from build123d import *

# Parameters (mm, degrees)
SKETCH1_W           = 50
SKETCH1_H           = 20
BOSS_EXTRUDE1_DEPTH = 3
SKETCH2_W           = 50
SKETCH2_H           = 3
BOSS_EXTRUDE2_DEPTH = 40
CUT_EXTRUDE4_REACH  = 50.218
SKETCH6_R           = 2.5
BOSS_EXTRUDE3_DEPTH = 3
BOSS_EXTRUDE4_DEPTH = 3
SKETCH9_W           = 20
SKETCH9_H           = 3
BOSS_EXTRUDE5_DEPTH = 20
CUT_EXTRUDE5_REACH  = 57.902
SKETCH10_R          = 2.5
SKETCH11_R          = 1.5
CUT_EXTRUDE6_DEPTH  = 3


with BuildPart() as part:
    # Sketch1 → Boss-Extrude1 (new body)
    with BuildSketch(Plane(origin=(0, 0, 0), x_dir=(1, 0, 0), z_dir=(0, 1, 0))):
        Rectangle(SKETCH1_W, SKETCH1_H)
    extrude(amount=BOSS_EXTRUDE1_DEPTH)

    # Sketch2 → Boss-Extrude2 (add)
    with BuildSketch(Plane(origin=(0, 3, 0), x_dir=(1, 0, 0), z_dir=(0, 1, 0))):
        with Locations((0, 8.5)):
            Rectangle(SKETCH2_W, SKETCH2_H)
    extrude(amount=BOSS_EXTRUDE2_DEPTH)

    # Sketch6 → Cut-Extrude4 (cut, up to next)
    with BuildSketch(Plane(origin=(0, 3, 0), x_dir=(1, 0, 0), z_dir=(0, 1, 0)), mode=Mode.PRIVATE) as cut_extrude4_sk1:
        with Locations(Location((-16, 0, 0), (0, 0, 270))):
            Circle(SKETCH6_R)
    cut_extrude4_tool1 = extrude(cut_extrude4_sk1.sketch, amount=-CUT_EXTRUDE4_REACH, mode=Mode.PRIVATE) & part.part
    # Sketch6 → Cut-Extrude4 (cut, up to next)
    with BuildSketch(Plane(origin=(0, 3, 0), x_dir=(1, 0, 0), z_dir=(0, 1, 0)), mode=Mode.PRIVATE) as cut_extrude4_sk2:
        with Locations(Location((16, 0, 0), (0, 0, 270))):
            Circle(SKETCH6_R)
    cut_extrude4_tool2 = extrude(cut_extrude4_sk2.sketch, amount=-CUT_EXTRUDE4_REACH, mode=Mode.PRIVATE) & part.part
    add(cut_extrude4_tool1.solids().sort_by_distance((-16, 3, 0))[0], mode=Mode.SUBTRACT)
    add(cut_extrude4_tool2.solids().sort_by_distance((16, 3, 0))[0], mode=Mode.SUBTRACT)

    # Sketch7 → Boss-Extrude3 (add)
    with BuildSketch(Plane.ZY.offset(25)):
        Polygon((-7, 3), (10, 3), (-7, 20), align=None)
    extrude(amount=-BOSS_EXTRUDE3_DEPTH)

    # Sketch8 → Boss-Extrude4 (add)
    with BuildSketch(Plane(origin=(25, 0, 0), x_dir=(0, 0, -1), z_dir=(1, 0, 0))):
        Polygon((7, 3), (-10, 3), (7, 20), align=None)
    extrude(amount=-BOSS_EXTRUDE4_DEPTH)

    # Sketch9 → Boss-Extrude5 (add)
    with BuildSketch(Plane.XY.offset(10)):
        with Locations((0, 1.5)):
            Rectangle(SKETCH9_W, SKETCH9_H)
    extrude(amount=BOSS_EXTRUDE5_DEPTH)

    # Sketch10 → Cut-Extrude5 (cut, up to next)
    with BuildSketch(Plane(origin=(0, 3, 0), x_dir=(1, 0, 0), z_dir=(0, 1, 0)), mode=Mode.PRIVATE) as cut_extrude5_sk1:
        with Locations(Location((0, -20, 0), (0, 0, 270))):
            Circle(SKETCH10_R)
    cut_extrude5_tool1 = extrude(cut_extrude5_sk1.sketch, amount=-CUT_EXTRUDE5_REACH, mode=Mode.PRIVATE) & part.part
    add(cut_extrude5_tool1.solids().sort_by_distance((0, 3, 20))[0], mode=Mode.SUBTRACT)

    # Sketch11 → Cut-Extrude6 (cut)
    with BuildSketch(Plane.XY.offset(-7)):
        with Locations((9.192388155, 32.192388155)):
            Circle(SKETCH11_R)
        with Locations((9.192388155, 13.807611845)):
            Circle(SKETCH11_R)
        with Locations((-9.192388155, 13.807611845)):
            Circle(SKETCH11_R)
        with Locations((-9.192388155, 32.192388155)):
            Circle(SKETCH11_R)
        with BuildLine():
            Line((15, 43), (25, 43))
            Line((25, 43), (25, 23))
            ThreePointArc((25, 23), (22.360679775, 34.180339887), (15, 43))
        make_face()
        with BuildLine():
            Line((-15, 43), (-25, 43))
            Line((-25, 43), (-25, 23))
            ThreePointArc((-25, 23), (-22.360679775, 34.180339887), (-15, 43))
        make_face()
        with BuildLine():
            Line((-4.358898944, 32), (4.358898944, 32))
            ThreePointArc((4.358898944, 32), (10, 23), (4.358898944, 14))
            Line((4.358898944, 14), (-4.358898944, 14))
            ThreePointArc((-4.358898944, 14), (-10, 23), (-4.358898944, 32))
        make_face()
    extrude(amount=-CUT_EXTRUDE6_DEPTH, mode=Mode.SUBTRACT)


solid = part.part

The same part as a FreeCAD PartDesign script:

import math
import FreeCAD as App
import Part
import Sketcher
from FreeCAD import Vector

doc = App.newDocument("Part")
body = doc.addObject("PartDesign::Body", "Body")

# Sketch on XZ plane
sketch1 = body.newObject("Sketcher::SketchObject", "Sketch")
sketch1.AttachmentSupport = (doc.getObject("XZ_Plane"), [""])
sketch1.MapMode = "FlatFace"
sketch1.addGeometry(Part.LineSegment(Vector(-25, -10, 0), Vector(-25, 10, 0)), False)
sketch1.addGeometry(Part.LineSegment(Vector(-25, 10, 0), Vector(25, 10, 0)), False)
sketch1.addGeometry(Part.LineSegment(Vector(25, 10, 0), Vector(25, -10, 0)), False)
sketch1.addGeometry(Part.LineSegment(Vector(25, -10, 0), Vector(-25, -10, 0)), False)
sketch1.addConstraint(Sketcher.Constraint("Coincident", 0, 2, 1, 1))
sketch1.addConstraint(Sketcher.Constraint("Coincident", 1, 2, 2, 1))
sketch1.addConstraint(Sketcher.Constraint("Coincident", 2, 2, 3, 1))
sketch1.addConstraint(Sketcher.Constraint("Coincident", 3, 2, 0, 1))
sketch1.addConstraint(Sketcher.Constraint("Vertical", 0))
sketch1.addConstraint(Sketcher.Constraint("Horizontal", 1))
sketch1.addConstraint(Sketcher.Constraint("Vertical", 2))
sketch1.addConstraint(Sketcher.Constraint("Horizontal", 3))
sketch1.addConstraint(Sketcher.Constraint("Symmetric", 0, 2, 2, 2, -1, 1))
sketch1.addConstraint(Sketcher.Constraint("DistanceX", 1, 1, 1, 2, 50.0))
sketch1.addConstraint(Sketcher.Constraint("DistanceY", 0, 1, 0, 2, 20.0))
pad1 = body.newObject("PartDesign::Pad", "Pad")
pad1.Profile = sketch1
pad1.Length = 3
pad1.Reversed = True

# Sketch on XZ plane
sketch2 = body.newObject("Sketcher::SketchObject", "Sketch001")
sketch2.AttachmentSupport = (doc.getObject("XZ_Plane"), [""])
sketch2.MapMode = "FlatFace"
sketch2.AttachmentOffset = App.Placement(Vector(0, 0, -3), App.Rotation())
sketch2.addGeometry(Part.LineSegment(Vector(-25, -10, 0), Vector(-25, -7, 0)), False)
sketch2.addGeometry(Part.LineSegment(Vector(-25, -7, 0), Vector(25, -7, 0)), False)
sketch2.addGeometry(Part.LineSegment(Vector(25, -7, 0), Vector(25, -10, 0)), False)
sketch2.addGeometry(Part.LineSegment(Vector(25, -10, 0), Vector(-25, -10, 0)), False)
sketch2.addConstraint(Sketcher.Constraint("Coincident", 0, 2, 1, 1))
sketch2.addConstraint(Sketcher.Constraint("Coincident", 1, 2, 2, 1))
sketch2.addConstraint(Sketcher.Constraint("Coincident", 2, 2, 3, 1))
sketch2.addConstraint(Sketcher.Constraint("Coincident", 3, 2, 0, 1))
sketch2.addConstraint(Sketcher.Constraint("Vertical", 0))
sketch2.addConstraint(Sketcher.Constraint("Horizontal", 1))
sketch2.addConstraint(Sketcher.Constraint("Vertical", 2))
sketch2.addConstraint(Sketcher.Constraint("Horizontal", 3))
sketch2.addConstraint(Sketcher.Constraint("DistanceX", 1, 1, 1, 2, 50.0))
sketch2.addConstraint(Sketcher.Constraint("DistanceY", 0, 1, 0, 2, 3.0))
sketch2.addConstraint(Sketcher.Constraint("DistanceX", 0, 2, -1, 1, 25.0))
sketch2.addConstraint(Sketcher.Constraint("DistanceY", 0, 2, -1, 1, 7.0))
pad2 = body.newObject("PartDesign::Pad", "Pad001")
pad2.Profile = sketch2
pad2.Length = 40
pad2.Reversed = True

# Sketch on XZ plane
sketch3 = body.newObject("Sketcher::SketchObject", "Sketch002")
sketch3.AttachmentSupport = (doc.getObject("XZ_Plane"), [""])
sketch3.MapMode = "FlatFace"
sketch3.AttachmentOffset = App.Placement(Vector(0, 0, -3), App.Rotation())
sketch3.addGeometry(Part.Circle(Vector(-16, 0, 0), Vector(0, 0, 1), 2.5), False)
sketch3.addConstraint(Sketcher.Constraint("PointOnObject", 0, 3, -1))
sketch3.addConstraint(Sketcher.Constraint("Diameter", 0, 5.0))
sketch3.addConstraint(Sketcher.Constraint("DistanceX", 0, 3, -1, 1, 16.0))
pocket1 = body.newObject("PartDesign::Pocket", "Pocket")
pocket1.Profile = sketch3
pocket1.Type = "UpToFirst"
pocket1.Reversed = True

# Sketch on XZ plane
sketch4 = body.newObject("Sketcher::SketchObject", "Sketch003")
sketch4.AttachmentSupport = (doc.getObject("XZ_Plane"), [""])
sketch4.MapMode = "FlatFace"
sketch4.AttachmentOffset = App.Placement(Vector(0, 0, -3), App.Rotation())
sketch4.addGeometry(Part.Circle(Vector(16, 0, 0), Vector(0, 0, 1), 2.5), False)
sketch4.addConstraint(Sketcher.Constraint("PointOnObject", 0, 3, -1))
sketch4.addConstraint(Sketcher.Constraint("Diameter", 0, 5.0))
sketch4.addConstraint(Sketcher.Constraint("DistanceX", -1, 1, 0, 3, 16.0))
pocket2 = body.newObject("PartDesign::Pocket", "Pocket001")
pocket2.Profile = sketch4
pocket2.Type = "UpToFirst"
pocket2.Reversed = True

# Sketch on YZ plane
sketch5 = body.newObject("Sketcher::SketchObject", "Sketch004")
sketch5.AttachmentSupport = (doc.getObject("YZ_Plane"), [""])
sketch5.MapMode = "FlatFace"
sketch5.AttachmentOffset = App.Placement(Vector(0, 0, -25), App.Rotation())
sketch5.addGeometry(Part.LineSegment(Vector(3, -7, 0), Vector(3, 10, 0)), False)
sketch5.addGeometry(Part.LineSegment(Vector(3, 10, 0), Vector(20, -7, 0)), False)
sketch5.addGeometry(Part.LineSegment(Vector(20, -7, 0), Vector(3, -7, 0)), False)
sketch5.addConstraint(Sketcher.Constraint("Coincident", 0, 2, 1, 1))
sketch5.addConstraint(Sketcher.Constraint("Coincident", 1, 2, 2, 1))
sketch5.addConstraint(Sketcher.Constraint("Coincident", 2, 2, 0, 1))
sketch5.addConstraint(Sketcher.Constraint("Vertical", 0))
sketch5.addConstraint(Sketcher.Constraint("Horizontal", 2))
sketch5.addConstraint(Sketcher.Constraint("Equal", 2, 0))
sketch5.addConstraint(Sketcher.Constraint("DistanceX", 2, 2, 2, 1, 17.0))
sketch5.addConstraint(Sketcher.Constraint("DistanceX", -1, 1, 0, 2, 3.0))
sketch5.addConstraint(Sketcher.Constraint("DistanceY", -1, 1, 0, 2, 10.0))
pad3 = body.newObject("PartDesign::Pad", "Pad002")
pad3.Profile = sketch5
pad3.Length = 3

# Sketch on YZ plane
sketch6 = body.newObject("Sketcher::SketchObject", "Sketch005")
sketch6.AttachmentSupport = (doc.getObject("YZ_Plane"), [""])
sketch6.MapMode = "FlatFace"
sketch6.AttachmentOffset = App.Placement(Vector(0, 0, 25), App.Rotation())
sketch6.addGeometry(Part.LineSegment(Vector(3, 10, 0), Vector(3, -7, 0)), False)
sketch6.addGeometry(Part.LineSegment(Vector(3, -7, 0), Vector(20, -7, 0)), False)
sketch6.addGeometry(Part.LineSegment(Vector(20, -7, 0), Vector(3, 10, 0)), False)
sketch6.addConstraint(Sketcher.Constraint("Coincident", 0, 2, 1, 1))
sketch6.addConstraint(Sketcher.Constraint("Coincident", 1, 2, 2, 1))
sketch6.addConstraint(Sketcher.Constraint("Coincident", 2, 2, 0, 1))
sketch6.addConstraint(Sketcher.Constraint("Vertical", 0))
sketch6.addConstraint(Sketcher.Constraint("Horizontal", 1))
sketch6.addConstraint(Sketcher.Constraint("Equal", 1, 0))
sketch6.addConstraint(Sketcher.Constraint("DistanceX", 1, 1, 1, 2, 17.0))
sketch6.addConstraint(Sketcher.Constraint("DistanceX", -1, 1, 0, 2, 3.0))
sketch6.addConstraint(Sketcher.Constraint("DistanceY", 0, 2, -1, 1, 7.0))
pad4 = body.newObject("PartDesign::Pad", "Pad003")
pad4.Profile = sketch6
pad4.Length = 3
pad4.Reversed = True

# Sketch on XY plane
sketch7 = body.newObject("Sketcher::SketchObject", "Sketch006")
sketch7.AttachmentSupport = (doc.getObject("XY_Plane"), [""])
sketch7.MapMode = "FlatFace"
sketch7.AttachmentOffset = App.Placement(Vector(0, 0, 10), App.Rotation())
sketch7.addGeometry(Part.LineSegment(Vector(-10, 3, 0), Vector(-10, 0, 0)), False)
sketch7.addGeometry(Part.LineSegment(Vector(-10, 0, 0), Vector(10, 0, 0)), False)
sketch7.addGeometry(Part.LineSegment(Vector(10, 0, 0), Vector(10, 3, 0)), False)
sketch7.addGeometry(Part.LineSegment(Vector(10, 3, 0), Vector(-10, 3, 0)), False)
sketch7.addConstraint(Sketcher.Constraint("Coincident", 0, 2, 1, 1))
sketch7.addConstraint(Sketcher.Constraint("Coincident", 1, 2, 2, 1))
sketch7.addConstraint(Sketcher.Constraint("Coincident", 2, 2, 3, 1))
sketch7.addConstraint(Sketcher.Constraint("Coincident", 3, 2, 0, 1))
sketch7.addConstraint(Sketcher.Constraint("Vertical", 0))
sketch7.addConstraint(Sketcher.Constraint("Horizontal", 1))
sketch7.addConstraint(Sketcher.Constraint("Vertical", 2))
sketch7.addConstraint(Sketcher.Constraint("Horizontal", 3))
sketch7.addConstraint(Sketcher.Constraint("Symmetric", 0, 2, 1, 2, -1, 1))
sketch7.addConstraint(Sketcher.Constraint("DistanceX", 1, 1, 1, 2, 20.0))
sketch7.addConstraint(Sketcher.Constraint("DistanceY", 0, 2, 0, 1, 3.0))
pad5 = body.newObject("PartDesign::Pad", "Pad004")
pad5.Profile = sketch7
pad5.Length = 20

# Sketch on XZ plane
sketch8 = body.newObject("Sketcher::SketchObject", "Sketch007")
sketch8.AttachmentSupport = (doc.getObject("XZ_Plane"), [""])
sketch8.MapMode = "FlatFace"
sketch8.AttachmentOffset = App.Placement(Vector(0, 0, -3), App.Rotation())
sketch8.addGeometry(Part.Circle(Vector(0, 20, 0), Vector(0, 0, 1), 2.5), False)
sketch8.addConstraint(Sketcher.Constraint("PointOnObject", 0, 3, -2))
sketch8.addConstraint(Sketcher.Constraint("Diameter", 0, 5.0))
sketch8.addConstraint(Sketcher.Constraint("DistanceY", -1, 1, 0, 3, 20.0))
pocket3 = body.newObject("PartDesign::Pocket", "Pocket002")
pocket3.Profile = sketch8
pocket3.Type = "UpToFirst"
pocket3.Reversed = True

# Sketch on XY plane
sketch9 = body.newObject("Sketcher::SketchObject", "Sketch008")
sketch9.AttachmentSupport = (doc.getObject("XY_Plane"), [""])
sketch9.MapMode = "FlatFace"
sketch9.AttachmentOffset = App.Placement(Vector(0, 0, -7), App.Rotation())
sketch9.addGeometry(Part.Circle(Vector(9.192388, 32.192388, 0), Vector(0, 0, 1), 1.5), False)
sketch9.addGeometry(Part.Circle(Vector(9.192388, 13.807612, 0), Vector(0, 0, 1), 1.5), False)
sketch9.addGeometry(Part.Circle(Vector(-9.192388, 13.807612, 0), Vector(0, 0, 1), 1.5), False)
sketch9.addGeometry(Part.Circle(Vector(-9.192388, 32.192388, 0), Vector(0, 0, 1), 1.5), False)
sketch9.addGeometry(Part.LineSegment(Vector(25, 43, 0), Vector(15, 43, 0)), False)
sketch9.addGeometry(Part.ArcOfCircle(Part.Circle(Vector(0, 23, 0), Vector(0, 0, 1), 25), math.radians(0), math.radians(53.130102)), False)
sketch9.addGeometry(Part.LineSegment(Vector(25, 23, 0), Vector(25, 43, 0)), False)
sketch9.addGeometry(Part.LineSegment(Vector(-15, 43, 0), Vector(-25, 43, 0)), False)
sketch9.addGeometry(Part.LineSegment(Vector(-25, 43, 0), Vector(-25, 23, 0)), False)
sketch9.addGeometry(Part.ArcOfCircle(Part.Circle(Vector(0, 23, 0), Vector(0, 0, 1), 25), math.radians(126.869898), math.radians(180)), False)
sketch9.addGeometry(Part.LineSegment(Vector(4.358899, 32, 0), Vector(-4.358899, 32, 0)), False)
sketch9.addGeometry(Part.ArcOfCircle(Part.Circle(Vector(0, 23, 0), Vector(0, 0, 1), 10), math.radians(115.841933), math.radians(244.158067)), False)
sketch9.addGeometry(Part.LineSegment(Vector(-4.358899, 14, 0), Vector(4.358899, 14, 0)), False)
sketch9.addGeometry(Part.ArcOfCircle(Part.Circle(Vector(0, 23, 0), Vector(0, 0, 1), 10), math.radians(-64.158067), math.radians(64.158067)), False)
sketch9.addConstraint(Sketcher.Constraint("Coincident", 4, 2, 5, 2))
sketch9.addConstraint(Sketcher.Constraint("Tangent", 5, 1, 6, 1))
sketch9.addConstraint(Sketcher.Constraint("Coincident", 6, 2, 4, 1))
sketch9.addConstraint(Sketcher.Constraint("Coincident", 7, 2, 8, 1))
sketch9.addConstraint(Sketcher.Constraint("Tangent", 8, 2, 9, 2))
sketch9.addConstraint(Sketcher.Constraint("Coincident", 9, 1, 7, 1))
sketch9.addConstraint(Sketcher.Constraint("Coincident", 10, 2, 11, 1))
sketch9.addConstraint(Sketcher.Constraint("Coincident", 11, 2, 12, 1))
sketch9.addConstraint(Sketcher.Constraint("Coincident", 12, 2, 13, 1))
sketch9.addConstraint(Sketcher.Constraint("Coincident", 13, 2, 10, 1))
sketch9.addConstraint(Sketcher.Constraint("Horizontal", 4))
sketch9.addConstraint(Sketcher.Constraint("Vertical", 6))
sketch9.addConstraint(Sketcher.Constraint("Horizontal", 7))
sketch9.addConstraint(Sketcher.Constraint("Vertical", 8))
sketch9.addConstraint(Sketcher.Constraint("Horizontal", 10))
sketch9.addConstraint(Sketcher.Constraint("Horizontal", 12))
sketch9.addConstraint(Sketcher.Constraint("Coincident", 9, 3, 5, 3))
sketch9.addConstraint(Sketcher.Constraint("Coincident", 11, 3, 5, 3))
sketch9.addConstraint(Sketcher.Constraint("Coincident", 13, 3, 5, 3))
sketch9.addConstraint(Sketcher.Constraint("Equal", 0, 1))
sketch9.addConstraint(Sketcher.Constraint("Equal", 1, 2))
sketch9.addConstraint(Sketcher.Constraint("Equal", 2, 3))
sketch9.addConstraint(Sketcher.Constraint("Equal", 5, 9))
sketch9.addConstraint(Sketcher.Constraint("Equal", 11, 13))
sketch9.addConstraint(Sketcher.Constraint("Symmetric", 1, 3, 2, 3, -2))
sketch9.addConstraint(Sketcher.Constraint("Symmetric", 0, 3, 3, 3, -2))
sketch9.addConstraint(Sketcher.Constraint("Symmetric", 6, 2, 7, 2, -2))
sketch9.addConstraint(Sketcher.Constraint("Vertical", 0, 3, 1, 3))
sketch9.addConstraint(Sketcher.Constraint("Vertical", 10, 2, 11, 2))
sketch9.addConstraint(Sketcher.Constraint("Diameter", 0, 3.0))
sketch9.addConstraint(Sketcher.Constraint("Radius", 5, 25.0))
sketch9.addConstraint(Sketcher.Constraint("Radius", 11, 10.0))
sketch9.addConstraint(Sketcher.Constraint("DistanceX", 4, 2, 4, 1, 10.0))
sketch9.addConstraint(Sketcher.Constraint("DistanceY", -1, 1, 5, 3, 23.0))
sketch9.addConstraint(Sketcher.Constraint("DistanceY", -1, 1, 10, 2, 32.0))
sketch9.addConstraint(Sketcher.Constraint("DistanceX", -1, 1, 0, 3, 9.192388))
sketch9.addConstraint(Sketcher.Constraint("DistanceY", -1, 1, 0, 3, 32.192388))
sketch9.addConstraint(Sketcher.Constraint("DistanceY", -1, 1, 1, 3, 13.807612))
pocket4 = body.newObject("PartDesign::Pocket", "Pocket003")
pocket4.Profile = sketch9
pocket4.Length = 3

doc.recompute()
